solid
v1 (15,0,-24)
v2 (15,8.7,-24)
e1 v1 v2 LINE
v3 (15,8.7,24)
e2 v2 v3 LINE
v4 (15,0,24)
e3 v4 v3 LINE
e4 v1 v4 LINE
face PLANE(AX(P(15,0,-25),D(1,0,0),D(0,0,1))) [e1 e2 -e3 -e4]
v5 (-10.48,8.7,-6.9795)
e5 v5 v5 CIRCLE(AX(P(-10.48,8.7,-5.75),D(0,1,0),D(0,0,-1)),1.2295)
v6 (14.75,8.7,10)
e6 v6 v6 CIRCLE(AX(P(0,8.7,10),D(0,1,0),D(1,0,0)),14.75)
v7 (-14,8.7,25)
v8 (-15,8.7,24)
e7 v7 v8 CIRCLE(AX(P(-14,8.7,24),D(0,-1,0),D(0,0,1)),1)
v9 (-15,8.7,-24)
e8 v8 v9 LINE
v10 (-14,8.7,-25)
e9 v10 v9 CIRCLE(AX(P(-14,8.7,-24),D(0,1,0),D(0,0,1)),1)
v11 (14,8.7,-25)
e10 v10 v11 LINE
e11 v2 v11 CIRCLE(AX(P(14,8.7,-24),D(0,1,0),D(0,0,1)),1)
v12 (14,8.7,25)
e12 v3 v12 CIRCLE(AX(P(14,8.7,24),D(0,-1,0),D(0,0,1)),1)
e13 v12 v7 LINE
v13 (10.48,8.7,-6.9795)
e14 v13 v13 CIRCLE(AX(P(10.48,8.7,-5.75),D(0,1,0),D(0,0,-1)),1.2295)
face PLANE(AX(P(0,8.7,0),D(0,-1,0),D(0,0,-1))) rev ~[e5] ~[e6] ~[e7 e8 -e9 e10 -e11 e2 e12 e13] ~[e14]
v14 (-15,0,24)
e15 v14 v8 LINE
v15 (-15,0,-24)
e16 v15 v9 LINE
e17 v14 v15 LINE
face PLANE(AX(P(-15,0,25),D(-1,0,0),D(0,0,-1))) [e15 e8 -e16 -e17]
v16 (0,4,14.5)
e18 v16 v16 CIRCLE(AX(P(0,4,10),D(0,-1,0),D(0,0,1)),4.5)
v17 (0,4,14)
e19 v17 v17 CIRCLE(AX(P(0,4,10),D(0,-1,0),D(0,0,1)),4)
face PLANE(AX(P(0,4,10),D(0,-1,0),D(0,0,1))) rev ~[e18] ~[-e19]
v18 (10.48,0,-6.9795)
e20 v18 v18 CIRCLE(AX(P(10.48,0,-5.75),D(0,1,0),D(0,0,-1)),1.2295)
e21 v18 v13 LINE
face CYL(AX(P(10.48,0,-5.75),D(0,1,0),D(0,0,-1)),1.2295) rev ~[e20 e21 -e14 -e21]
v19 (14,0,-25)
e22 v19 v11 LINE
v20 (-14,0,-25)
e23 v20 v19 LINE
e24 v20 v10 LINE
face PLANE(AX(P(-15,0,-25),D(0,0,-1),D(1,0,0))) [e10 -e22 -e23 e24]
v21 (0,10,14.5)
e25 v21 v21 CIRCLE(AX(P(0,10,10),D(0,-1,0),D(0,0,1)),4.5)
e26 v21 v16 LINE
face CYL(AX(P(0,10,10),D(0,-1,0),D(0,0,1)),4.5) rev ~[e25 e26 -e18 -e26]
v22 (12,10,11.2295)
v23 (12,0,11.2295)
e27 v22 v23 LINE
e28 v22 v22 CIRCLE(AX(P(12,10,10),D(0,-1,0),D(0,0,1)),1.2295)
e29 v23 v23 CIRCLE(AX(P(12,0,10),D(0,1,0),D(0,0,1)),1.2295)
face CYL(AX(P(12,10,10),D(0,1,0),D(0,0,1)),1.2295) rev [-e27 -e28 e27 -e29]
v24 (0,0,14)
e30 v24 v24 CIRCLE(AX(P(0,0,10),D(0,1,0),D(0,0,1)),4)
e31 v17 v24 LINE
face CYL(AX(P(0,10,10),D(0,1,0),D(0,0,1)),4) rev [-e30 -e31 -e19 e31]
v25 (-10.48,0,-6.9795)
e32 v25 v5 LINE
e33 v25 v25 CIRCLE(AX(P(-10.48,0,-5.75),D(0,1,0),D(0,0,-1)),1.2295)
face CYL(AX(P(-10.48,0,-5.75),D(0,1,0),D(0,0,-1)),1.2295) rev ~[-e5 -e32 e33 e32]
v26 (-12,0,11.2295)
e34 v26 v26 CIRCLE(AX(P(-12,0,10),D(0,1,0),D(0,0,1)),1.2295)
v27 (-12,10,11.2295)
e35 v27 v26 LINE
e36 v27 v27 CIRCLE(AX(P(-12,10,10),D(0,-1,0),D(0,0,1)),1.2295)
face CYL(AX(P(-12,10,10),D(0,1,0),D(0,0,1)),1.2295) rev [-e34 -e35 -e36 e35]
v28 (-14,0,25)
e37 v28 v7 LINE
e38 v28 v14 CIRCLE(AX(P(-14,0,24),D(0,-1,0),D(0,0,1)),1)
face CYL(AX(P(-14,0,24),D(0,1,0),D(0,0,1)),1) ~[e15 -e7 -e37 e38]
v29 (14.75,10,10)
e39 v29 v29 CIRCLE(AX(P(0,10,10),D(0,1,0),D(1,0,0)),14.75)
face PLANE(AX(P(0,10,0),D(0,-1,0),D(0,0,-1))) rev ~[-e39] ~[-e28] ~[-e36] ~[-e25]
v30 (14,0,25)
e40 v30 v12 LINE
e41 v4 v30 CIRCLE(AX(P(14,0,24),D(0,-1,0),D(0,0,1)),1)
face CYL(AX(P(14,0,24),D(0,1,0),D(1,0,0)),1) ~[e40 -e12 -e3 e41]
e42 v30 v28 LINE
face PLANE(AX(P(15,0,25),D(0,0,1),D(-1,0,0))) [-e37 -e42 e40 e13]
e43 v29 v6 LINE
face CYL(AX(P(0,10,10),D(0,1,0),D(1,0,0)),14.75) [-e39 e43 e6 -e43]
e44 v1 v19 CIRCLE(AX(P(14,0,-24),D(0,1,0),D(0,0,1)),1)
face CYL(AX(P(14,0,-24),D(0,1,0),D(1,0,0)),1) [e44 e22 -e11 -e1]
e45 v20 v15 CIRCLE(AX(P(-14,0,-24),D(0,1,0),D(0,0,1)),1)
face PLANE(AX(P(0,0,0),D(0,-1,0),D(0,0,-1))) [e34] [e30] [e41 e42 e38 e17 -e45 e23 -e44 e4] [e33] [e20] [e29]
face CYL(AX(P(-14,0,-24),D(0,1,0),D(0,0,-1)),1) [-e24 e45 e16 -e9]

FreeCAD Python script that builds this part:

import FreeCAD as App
import Part
import Sketcher

V = App.Vector
Q = App.Units.Quantity


def edges_at(feature, points):
    """Names of the edges that pass closest to the given points."""
    edges = feature.Shape.Edges
    near = lambda p: min(range(len(edges)), key=lambda i: edges[i].distToShape(Part.Vertex(*p))[0])
    return sorted({f"Edge{near(p) + 1}" for p in points})

doc = App.newDocument("Part")
body = doc.addObject("PartDesign::Body", "Body")

# Sketch on XZ plane
sketch1 = body.newObject("Sketcher::SketchObject", "Sketch")
sketch1.AttachmentSupport = (doc.getObject("XZ_Plane"), [""])
sketch1.MapMode = "FlatFace"
sketch1.addGeometry([
    Part.LineSegment(V(-15, -25, 0), V(15, -25, 0)),
    Part.LineSegment(V(15, -25, 0), V(15, 25, 0)),
    Part.LineSegment(V(15, 25, 0), V(-15, 25, 0)),
    Part.LineSegment(V(-15, 25, 0), V(-15, -25, 0)),
], False)
sketch1.addConstraint([
    Sketcher.Constraint("Coincident", 0, 2, 1, 1),
    Sketcher.Constraint("Coincident", 1, 2, 2, 1),
    Sketcher.Constraint("Coincident", 2, 2, 3, 1),
    Sketcher.Constraint("Coincident", 3, 2, 0, 1),
    Sketcher.Constraint("Horizontal", 0),
    Sketcher.Constraint("Vertical", 1),
    Sketcher.Constraint("Horizontal", 2),
    Sketcher.Constraint("Vertical", 3),
    Sketcher.Constraint("Symmetric", 0, 2, 2, 2, -1, 1),
    Sketcher.Constraint("DistanceX", 0, 1, 0, 2, Q("30 mm")),
    Sketcher.Constraint("DistanceY", 1, 1, 1, 2, Q("50 mm")),
])
pad1 = body.newObject("PartDesign::Pad", "Pad")
pad1.Profile = sketch1
pad1.Length = 10
pad1.Reversed = True

# Sketch on XZ plane
sketch2 = body.newObject("Sketcher::SketchObject", "Sketch001")
sketch2.AttachmentSupport = (doc.getObject("XZ_Plane"), [""])
sketch2.MapMode = "FlatFace"
sketch2.AttachmentOffset = App.Placement(V(0, 0, -10), App.Rotation())
sketch2.addGeometry(Part.Circle(V(0, 10, 0), V(0, 0, 1), 4), False)
sketch2.addConstraint([
    Sketcher.Constraint("PointOnObject", 0, 3, -2),
    Sketcher.Constraint("Diameter", 0, Q("8 mm")),
    Sketcher.Constraint("DistanceY", -1, 1, 0, 3, Q("10 mm")),
])
doc.recompute()
hole = body.newObject("PartDesign::Hole", "Hole")
hole.Profile = sketch2
hole.ThreadType = "None"
hole.Diameter = 8
hole.DepthType = "ThroughAll"
hole.HoleCutType = "Counterbore"
hole.HoleCutDiameter = 9
hole.HoleCutDepth = 6
hole.Reversed = True

# Sketch on XZ plane
sketch3 = body.newObject("Sketcher::SketchObject", "Sketch002")
sketch3.AttachmentSupport = (doc.getObject("XZ_Plane"), [""])
sketch3.MapMode = "FlatFace"
sketch3.AttachmentOffset = App.Placement(V(0, 0, -10), App.Rotation())
sketch3.addGeometry([
    Part.LineSegment(V(15, -25, 0), V(-15, -25, 0)),  # 0
    Part.LineSegment(V(-15, -25, 0), V(-15, 25, 0)),  # 1
    Part.LineSegment(V(-15, 25, 0), V(15, 25, 0)),  # 2
    Part.LineSegment(V(15, 25, 0), V(15, -25, 0)),  # 3
    Part.Circle(V(0, 10, 0), V(0, 0, 1), 15),  # 4
], False)
sketch3.addConstraint([
    Sketcher.Constraint("Coincident", 0, 2, 1, 1),
    Sketcher.Constraint("Coincident", 1, 2, 2, 1),
    Sketcher.Constraint("Coincident", 2, 2, 3, 1),
    Sketcher.Constraint("Coincident", 3, 2, 0, 1),
    Sketcher.Constraint("Horizontal", 0),
    Sketcher.Constraint("Vertical", 1),
    Sketcher.Constraint("Horizontal", 2),
    Sketcher.Constraint("Vertical", 3),
    Sketcher.Constraint("Symmetric", 0, 2, 2, 2, -1, 1),
    Sketcher.Constraint("PointOnObject", 4, 3, -2),
    Sketcher.Constraint("Diameter", 4, Q("29.5 mm")),
    Sketcher.Constraint("DistanceX", 0, 2, 0, 1, Q("30 mm")),
    Sketcher.Constraint("DistanceY", 1, 1, 1, 2, Q("50 mm")),
    Sketcher.Constraint("DistanceY", -1, 1, 4, 3, Q("10 mm")),
])
pocket1 = body.newObject("PartDesign::Pocket", "Pocket")
pocket1.Profile = sketch3
pocket1.Length = 1.3
pocket1.Reversed = True
doc.recompute()

fillet = body.newObject("PartDesign::Fillet", "Fillet")
fillet.Base = (pocket1, edges_at(pocket1, [
    (-15, 4.35, 25),
    (15, 4.35, 25),
    (15, 4.35, -25),
    (-15, 4.35, -25),
]))
fillet.Radius = 1

# Sketch on XZ plane
sketch4 = body.newObject("Sketcher::SketchObject", "Sketch003")
sketch4.AttachmentSupport = (doc.getObject("XZ_Plane"), [""])
sketch4.MapMode = "FlatFace"
sketch4.AttachmentOffset = App.Placement(V(0, 0, -10), App.Rotation())
sketch4.addGeometry(Part.Circle(V(-12, 10, 0), V(0, 0, 1), 1.2), False)
sketch4.addConstraint([
    Sketcher.Constraint("Diameter", 0, Q("2.459 mm")),
    Sketcher.Constraint("DistanceX", 0, 3, -1, 1, Q("12 mm")),
    Sketcher.Constraint("DistanceY", -1, 1, 0, 3, Q("10 mm")),
])
doc.recompute()
hole2 = body.newObject("PartDesign::Hole", "Hole001")
hole2.Profile = sketch4
hole2.ThreadType = "None"
hole2.Diameter = 2.459
hole2.DepthType = "ThroughAll"
hole2.Reversed = True

# Sketch on XZ plane
sketch5 = body.newObject("Sketcher::SketchObject", "Sketch004")
sketch5.AttachmentSupport = (doc.getObject("XZ_Plane"), [""])
sketch5.MapMode = "FlatFace"
sketch5.AttachmentOffset = App.Placement(V(0, 0, -10), App.Rotation())
sketch5.addGeometry(Part.Circle(V(12, 10, 0), V(0, 0, 1), 1.2), False)
sketch5.addConstraint([
    Sketcher.Constraint("Diameter", 0, Q("2.459 mm")),
    Sketcher.Constraint("DistanceX", -1, 1, 0, 3, Q("12 mm")),
    Sketcher.Constraint("DistanceY", -1, 1, 0, 3, Q("10 mm")),
])
doc.recompute()
hole3 = body.newObject("PartDesign::Hole", "Hole002")
hole3.Profile = sketch5
hole3.ThreadType = "None"
hole3.Diameter = 2.459
hole3.DepthType = "ThroughAll"
hole3.Reversed = True

# Sketch on XZ plane
sketch6 = body.newObject("Sketcher::SketchObject", "Sketch005")
sketch6.AttachmentSupport = (doc.getObject("XZ_Plane"), [""])
sketch6.MapMode = "FlatFace"
sketch6.addGeometry(Part.Circle(V(10.5, -5.8, 0), V(0, 0, 1), 1.2), False)
sketch6.addConstraint([
    Sketcher.Constraint("Diameter", 0, Q("2.459 mm")),
    Sketcher.Constraint("DistanceX", -1, 1, 0, 3, Q("10.48 mm")),
    Sketcher.Constraint("DistanceY", 0, 3, -1, 1, Q("5.75 mm")),
])
doc.recompute()
hole4 = body.newObject("PartDesign::Hole", "Hole003")
hole4.Profile = sketch6
hole4.ThreadType = "None"
hole4.Diameter = 2.459
hole4.DepthType = "Dimension"
hole4.Depth = 15
hole4.DrillPoint = "Flat"

# Sketch on XZ plane
sketch7 = body.newObject("Sketcher::SketchObject", "Sketch006")
sketch7.AttachmentSupport = (doc.getObject("XZ_Plane"), [""])
sketch7.MapMode = "FlatFace"
sketch7.addGeometry(Part.Circle(V(-10.5, -5.8, 0), V(0, 0, 1), 1.2), False)
sketch7.addConstraint([
    Sketcher.Constraint("Diameter", 0, Q("2.459 mm")),
    Sketcher.Constraint("DistanceX", 0, 3, -1, 1, Q("10.48 mm")),
    Sketcher.Constraint("DistanceY", 0, 3, -1, 1, Q("5.75 mm")),
])
doc.recompute()
hole5 = body.newObject("PartDesign::Hole", "Hole004")
hole5.Profile = sketch7
hole5.ThreadType = "None"
hole5.Diameter = 2.459
hole5.DepthType = "Dimension"
hole5.Depth = 15
hole5.DrillPoint = "Flat"

doc.recompute()
